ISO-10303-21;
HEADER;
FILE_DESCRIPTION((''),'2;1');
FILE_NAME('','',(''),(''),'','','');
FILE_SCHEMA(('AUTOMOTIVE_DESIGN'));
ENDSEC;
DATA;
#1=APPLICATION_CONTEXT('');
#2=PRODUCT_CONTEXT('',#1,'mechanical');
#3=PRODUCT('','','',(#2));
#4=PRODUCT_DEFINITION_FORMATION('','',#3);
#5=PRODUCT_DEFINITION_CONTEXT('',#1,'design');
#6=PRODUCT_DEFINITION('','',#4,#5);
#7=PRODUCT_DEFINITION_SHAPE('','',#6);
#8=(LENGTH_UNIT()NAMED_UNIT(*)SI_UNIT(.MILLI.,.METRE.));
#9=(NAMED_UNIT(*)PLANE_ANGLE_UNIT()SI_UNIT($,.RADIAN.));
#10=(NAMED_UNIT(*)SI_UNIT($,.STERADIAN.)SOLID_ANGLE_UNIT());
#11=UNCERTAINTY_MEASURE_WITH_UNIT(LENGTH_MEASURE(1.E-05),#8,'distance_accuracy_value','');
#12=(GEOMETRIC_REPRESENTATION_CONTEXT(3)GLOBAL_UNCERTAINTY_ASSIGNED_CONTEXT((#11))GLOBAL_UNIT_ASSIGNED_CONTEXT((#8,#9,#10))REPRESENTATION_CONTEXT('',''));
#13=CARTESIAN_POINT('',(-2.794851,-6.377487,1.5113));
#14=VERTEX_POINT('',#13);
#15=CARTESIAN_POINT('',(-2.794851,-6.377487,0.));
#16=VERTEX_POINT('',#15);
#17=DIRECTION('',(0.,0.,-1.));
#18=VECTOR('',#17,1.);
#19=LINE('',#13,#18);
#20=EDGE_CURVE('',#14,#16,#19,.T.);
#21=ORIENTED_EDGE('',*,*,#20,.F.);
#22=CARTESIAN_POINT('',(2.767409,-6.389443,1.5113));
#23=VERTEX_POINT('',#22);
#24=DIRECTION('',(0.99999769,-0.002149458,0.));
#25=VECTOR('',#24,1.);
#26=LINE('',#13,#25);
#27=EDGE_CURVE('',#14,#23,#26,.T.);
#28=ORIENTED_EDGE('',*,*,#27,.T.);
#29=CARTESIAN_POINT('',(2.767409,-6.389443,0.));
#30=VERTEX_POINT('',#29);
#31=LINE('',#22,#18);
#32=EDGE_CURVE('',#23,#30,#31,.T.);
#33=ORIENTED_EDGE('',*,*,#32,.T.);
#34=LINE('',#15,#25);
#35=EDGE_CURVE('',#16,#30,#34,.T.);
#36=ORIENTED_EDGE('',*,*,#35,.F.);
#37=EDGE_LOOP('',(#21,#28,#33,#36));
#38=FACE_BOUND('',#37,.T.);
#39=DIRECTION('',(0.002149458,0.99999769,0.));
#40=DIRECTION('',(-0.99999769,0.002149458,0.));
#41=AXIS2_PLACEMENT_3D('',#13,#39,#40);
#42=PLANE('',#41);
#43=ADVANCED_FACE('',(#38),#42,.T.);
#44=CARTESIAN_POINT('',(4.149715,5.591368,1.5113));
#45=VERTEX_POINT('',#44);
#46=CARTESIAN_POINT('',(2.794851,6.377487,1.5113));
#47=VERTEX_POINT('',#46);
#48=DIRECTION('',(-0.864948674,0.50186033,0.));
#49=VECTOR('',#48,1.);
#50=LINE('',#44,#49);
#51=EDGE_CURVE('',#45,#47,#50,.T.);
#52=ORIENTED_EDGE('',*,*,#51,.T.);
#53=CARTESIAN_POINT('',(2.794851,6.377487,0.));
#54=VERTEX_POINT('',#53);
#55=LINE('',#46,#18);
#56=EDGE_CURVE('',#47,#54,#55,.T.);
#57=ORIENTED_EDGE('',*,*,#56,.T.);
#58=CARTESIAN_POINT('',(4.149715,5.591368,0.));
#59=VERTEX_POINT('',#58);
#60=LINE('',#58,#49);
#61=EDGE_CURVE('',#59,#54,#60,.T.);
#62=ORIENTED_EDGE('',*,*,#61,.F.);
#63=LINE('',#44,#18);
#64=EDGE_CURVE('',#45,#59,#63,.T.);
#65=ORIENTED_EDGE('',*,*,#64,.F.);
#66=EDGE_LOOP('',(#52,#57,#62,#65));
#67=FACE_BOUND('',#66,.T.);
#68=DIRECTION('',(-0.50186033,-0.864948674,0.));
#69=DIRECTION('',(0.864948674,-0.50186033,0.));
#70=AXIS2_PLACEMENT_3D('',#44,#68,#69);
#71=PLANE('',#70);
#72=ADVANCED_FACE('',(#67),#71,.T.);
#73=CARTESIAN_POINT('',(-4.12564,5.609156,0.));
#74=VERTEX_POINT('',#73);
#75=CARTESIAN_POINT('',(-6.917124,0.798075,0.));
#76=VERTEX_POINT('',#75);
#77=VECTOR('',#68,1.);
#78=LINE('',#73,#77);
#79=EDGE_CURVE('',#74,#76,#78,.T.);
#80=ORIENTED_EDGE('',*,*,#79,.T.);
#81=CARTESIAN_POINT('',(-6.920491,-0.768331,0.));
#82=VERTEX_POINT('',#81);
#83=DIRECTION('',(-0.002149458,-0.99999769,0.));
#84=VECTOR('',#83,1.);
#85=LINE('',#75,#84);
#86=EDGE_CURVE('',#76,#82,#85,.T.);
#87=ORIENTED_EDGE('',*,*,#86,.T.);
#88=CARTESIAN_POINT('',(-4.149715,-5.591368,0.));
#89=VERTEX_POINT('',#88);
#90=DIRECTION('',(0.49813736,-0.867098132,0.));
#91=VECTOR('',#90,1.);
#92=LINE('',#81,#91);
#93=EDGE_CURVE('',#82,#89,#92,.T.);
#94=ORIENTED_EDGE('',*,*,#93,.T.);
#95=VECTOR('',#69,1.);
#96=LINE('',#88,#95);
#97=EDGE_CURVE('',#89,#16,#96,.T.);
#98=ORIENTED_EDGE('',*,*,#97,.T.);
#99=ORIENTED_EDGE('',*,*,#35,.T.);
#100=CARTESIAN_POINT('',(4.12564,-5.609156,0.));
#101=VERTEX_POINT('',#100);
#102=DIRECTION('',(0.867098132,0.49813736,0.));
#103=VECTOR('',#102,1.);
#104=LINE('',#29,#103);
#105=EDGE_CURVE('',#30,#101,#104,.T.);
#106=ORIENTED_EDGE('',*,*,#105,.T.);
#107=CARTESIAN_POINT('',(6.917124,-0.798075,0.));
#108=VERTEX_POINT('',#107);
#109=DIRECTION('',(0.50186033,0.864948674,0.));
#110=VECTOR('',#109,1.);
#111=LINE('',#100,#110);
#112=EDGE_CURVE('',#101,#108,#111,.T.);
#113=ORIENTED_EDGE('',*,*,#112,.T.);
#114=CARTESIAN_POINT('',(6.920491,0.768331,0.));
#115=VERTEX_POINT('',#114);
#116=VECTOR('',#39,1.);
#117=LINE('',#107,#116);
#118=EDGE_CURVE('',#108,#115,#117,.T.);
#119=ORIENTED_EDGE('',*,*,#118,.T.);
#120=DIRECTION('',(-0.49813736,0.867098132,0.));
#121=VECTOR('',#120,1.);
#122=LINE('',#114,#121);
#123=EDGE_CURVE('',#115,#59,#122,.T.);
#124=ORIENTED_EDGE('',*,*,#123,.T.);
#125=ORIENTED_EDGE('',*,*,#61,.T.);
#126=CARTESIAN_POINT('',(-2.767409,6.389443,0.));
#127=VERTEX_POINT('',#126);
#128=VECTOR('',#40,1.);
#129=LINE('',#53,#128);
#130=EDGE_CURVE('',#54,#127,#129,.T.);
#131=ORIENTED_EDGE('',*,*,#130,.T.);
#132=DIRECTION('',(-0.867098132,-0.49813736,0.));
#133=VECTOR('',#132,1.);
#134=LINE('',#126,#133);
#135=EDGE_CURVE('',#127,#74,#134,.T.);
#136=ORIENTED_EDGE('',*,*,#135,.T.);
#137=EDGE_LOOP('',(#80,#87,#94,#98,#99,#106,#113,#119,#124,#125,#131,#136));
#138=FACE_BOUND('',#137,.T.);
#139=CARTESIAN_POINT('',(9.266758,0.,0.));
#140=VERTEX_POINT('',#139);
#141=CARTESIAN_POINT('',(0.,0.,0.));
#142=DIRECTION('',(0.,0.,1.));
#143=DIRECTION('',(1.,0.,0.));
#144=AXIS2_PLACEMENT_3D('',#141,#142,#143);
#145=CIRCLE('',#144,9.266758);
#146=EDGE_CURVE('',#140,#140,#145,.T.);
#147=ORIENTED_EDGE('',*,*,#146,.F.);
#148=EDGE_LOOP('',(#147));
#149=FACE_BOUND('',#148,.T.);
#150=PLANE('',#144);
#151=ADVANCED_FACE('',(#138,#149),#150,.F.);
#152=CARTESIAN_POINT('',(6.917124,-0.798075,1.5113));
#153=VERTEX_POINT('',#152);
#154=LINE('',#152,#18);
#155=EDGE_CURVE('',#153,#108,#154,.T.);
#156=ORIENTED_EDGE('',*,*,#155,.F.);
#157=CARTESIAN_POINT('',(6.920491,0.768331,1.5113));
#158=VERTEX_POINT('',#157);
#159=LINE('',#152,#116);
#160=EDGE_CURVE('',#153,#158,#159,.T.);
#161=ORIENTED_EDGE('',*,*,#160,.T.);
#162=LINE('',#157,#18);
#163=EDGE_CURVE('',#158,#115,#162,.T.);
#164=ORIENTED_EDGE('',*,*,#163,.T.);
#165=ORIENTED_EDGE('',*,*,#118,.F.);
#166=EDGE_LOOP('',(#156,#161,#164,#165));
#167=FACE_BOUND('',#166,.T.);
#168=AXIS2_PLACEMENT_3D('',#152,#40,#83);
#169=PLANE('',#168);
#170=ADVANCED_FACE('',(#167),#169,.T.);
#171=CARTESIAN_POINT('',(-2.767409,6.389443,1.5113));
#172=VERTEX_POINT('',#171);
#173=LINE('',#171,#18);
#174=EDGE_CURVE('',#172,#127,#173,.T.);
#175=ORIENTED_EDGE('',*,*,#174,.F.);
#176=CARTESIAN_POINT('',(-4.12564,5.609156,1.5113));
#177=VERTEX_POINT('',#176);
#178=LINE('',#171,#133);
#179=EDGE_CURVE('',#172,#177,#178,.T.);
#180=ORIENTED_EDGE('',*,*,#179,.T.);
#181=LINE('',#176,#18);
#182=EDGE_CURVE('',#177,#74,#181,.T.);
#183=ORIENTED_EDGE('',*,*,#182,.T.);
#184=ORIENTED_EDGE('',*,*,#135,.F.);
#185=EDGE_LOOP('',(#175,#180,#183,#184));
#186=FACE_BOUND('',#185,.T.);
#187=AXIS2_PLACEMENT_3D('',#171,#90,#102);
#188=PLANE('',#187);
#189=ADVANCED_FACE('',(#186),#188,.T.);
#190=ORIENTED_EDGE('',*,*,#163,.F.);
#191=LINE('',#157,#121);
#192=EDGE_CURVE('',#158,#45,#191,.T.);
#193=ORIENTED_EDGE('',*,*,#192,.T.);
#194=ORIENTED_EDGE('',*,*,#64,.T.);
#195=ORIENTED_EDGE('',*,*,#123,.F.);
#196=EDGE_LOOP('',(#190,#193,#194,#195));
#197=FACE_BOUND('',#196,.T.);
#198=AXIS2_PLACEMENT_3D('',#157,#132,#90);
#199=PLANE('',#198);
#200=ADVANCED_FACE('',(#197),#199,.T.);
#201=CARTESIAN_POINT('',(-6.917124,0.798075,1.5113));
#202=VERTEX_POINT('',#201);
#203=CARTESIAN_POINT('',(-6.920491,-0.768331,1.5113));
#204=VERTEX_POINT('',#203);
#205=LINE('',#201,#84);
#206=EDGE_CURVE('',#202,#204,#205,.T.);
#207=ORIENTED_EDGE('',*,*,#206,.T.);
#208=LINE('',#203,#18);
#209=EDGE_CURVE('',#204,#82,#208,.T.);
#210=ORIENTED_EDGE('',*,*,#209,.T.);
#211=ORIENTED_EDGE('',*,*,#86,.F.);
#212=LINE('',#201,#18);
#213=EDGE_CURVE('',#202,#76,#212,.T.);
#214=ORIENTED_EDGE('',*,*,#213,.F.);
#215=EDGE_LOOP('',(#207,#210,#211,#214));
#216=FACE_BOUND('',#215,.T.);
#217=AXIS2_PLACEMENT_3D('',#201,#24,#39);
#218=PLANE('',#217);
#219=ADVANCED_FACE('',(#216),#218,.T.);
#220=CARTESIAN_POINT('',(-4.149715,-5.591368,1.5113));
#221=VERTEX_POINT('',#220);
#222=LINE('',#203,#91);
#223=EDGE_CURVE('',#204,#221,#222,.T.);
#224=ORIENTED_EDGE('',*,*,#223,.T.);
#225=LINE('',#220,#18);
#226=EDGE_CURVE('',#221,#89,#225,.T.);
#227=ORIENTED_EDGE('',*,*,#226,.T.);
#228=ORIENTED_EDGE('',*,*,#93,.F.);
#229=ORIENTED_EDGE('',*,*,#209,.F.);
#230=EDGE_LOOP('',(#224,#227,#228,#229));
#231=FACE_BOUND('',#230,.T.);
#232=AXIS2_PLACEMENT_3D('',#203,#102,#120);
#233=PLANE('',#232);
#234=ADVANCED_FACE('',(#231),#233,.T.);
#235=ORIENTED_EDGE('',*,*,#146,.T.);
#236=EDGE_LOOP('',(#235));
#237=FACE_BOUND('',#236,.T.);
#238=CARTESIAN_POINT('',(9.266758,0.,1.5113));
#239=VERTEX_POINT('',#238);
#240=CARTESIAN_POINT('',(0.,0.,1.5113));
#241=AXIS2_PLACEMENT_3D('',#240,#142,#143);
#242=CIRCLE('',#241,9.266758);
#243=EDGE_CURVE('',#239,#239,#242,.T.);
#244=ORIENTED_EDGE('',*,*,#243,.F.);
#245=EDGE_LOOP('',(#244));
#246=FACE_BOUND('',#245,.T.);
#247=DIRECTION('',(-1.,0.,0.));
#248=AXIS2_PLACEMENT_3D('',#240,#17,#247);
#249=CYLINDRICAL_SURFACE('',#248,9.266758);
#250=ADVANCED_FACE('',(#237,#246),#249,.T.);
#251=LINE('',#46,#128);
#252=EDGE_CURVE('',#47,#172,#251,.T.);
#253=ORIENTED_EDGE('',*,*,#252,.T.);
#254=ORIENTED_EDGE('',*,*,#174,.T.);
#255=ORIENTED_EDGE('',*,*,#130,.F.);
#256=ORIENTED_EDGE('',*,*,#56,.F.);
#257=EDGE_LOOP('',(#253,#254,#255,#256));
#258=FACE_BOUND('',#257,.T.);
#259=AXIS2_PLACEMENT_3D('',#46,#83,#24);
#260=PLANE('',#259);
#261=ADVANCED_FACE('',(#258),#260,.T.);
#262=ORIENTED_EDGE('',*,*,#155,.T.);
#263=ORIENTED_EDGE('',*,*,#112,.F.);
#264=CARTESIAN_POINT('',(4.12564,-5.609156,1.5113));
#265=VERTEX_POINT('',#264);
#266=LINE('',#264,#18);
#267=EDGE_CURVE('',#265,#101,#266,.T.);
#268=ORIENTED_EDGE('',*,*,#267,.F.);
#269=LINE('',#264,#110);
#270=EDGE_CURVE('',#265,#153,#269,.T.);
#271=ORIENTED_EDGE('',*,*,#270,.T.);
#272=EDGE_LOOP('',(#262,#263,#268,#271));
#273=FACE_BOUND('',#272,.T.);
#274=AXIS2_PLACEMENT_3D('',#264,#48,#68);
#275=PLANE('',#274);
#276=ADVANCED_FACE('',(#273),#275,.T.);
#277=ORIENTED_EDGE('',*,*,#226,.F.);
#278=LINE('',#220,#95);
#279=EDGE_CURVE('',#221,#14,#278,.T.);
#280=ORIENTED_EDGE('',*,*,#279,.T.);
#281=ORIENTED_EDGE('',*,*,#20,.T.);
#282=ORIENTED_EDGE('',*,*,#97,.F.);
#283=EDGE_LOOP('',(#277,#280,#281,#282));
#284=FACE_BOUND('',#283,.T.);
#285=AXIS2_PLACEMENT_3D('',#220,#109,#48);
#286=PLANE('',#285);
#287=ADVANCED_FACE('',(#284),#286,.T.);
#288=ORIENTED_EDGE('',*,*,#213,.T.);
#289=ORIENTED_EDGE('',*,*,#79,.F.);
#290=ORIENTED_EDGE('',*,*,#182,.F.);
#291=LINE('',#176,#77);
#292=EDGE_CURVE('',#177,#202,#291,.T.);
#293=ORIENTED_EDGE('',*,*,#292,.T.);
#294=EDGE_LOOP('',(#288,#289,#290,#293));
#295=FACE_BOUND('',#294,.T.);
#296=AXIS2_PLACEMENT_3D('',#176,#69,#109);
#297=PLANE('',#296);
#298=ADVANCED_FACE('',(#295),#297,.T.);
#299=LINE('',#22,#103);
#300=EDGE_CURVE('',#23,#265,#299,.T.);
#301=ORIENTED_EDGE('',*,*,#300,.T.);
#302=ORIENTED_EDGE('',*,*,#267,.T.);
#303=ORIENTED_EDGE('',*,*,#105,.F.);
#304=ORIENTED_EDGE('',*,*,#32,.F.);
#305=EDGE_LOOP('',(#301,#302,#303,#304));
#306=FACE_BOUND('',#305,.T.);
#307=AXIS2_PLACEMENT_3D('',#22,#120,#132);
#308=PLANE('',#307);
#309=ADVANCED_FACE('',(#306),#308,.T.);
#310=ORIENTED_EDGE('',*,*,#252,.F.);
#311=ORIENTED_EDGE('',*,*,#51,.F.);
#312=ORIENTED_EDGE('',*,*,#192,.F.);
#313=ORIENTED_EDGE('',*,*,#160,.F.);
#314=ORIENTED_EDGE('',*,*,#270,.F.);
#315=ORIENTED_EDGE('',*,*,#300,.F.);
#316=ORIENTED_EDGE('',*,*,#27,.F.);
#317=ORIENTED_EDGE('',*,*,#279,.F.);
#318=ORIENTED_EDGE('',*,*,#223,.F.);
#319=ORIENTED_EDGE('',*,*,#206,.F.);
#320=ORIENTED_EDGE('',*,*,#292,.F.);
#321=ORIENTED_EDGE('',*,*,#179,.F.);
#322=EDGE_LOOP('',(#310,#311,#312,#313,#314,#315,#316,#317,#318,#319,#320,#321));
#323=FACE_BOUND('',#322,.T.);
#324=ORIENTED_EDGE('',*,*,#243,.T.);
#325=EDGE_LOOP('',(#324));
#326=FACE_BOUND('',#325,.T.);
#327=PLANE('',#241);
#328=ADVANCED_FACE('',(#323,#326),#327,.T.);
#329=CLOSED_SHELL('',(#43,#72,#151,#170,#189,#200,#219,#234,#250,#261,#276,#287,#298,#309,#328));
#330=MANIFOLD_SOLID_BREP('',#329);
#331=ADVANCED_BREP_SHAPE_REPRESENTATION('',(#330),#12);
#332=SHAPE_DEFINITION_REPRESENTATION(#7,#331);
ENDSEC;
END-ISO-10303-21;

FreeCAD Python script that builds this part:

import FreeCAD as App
import Part
import Sketcher

V = App.Vector

doc = App.newDocument("Part")
body = doc.addObject("PartDesign::Body", "Body")

sketch1 = body.newObject("Sketcher::SketchObject", "Sketch")
sketch1.AttachmentSupport = (doc.getObject("XY_Plane"), [""])
sketch1.MapMode = "FlatFace"
sketch1.addGeometry(Part.Circle(V(0, 0, 0), V(0, 0, 1), 9.266758), False)
sketch1.addGeometry(Part.LineSegment(V(-4.12564, 5.609156, 0), V(-2.767409, 6.389443, 0)), False)
sketch1.addGeometry(Part.LineSegment(V(-2.767409, 6.389443, 0), V(2.794851, 6.377487, 0)), False)
sketch1.addGeometry(Part.LineSegment(V(2.794851, 6.377487, 0), V(4.149715, 5.591368, 0)), False)
sketch1.addGeometry(Part.LineSegment(V(4.149715, 5.591368, 0), V(6.920491, 0.768331, 0)), False)
sketch1.addGeometry(Part.LineSegment(V(6.920491, 0.768331, 0), V(6.917124, -0.798075, 0)), False)
sketch1.addGeometry(Part.LineSegment(V(6.917124, -0.798075, 0), V(4.12564, -5.609156, 0)), False)
sketch1.addGeometry(Part.LineSegment(V(4.12564, -5.609156, 0), V(2.767409, -6.389443, 0)), False)
sketch1.addGeometry(Part.LineSegment(V(2.767409, -6.389443, 0), V(-2.794851, -6.377487, 0)), False)
sketch1.addGeometry(Part.LineSegment(V(-2.794851, -6.377487, 0), V(-4.149715, -5.591368, 0)), False)
sketch1.addGeometry(Part.LineSegment(V(-4.149715, -5.591368, 0), V(-6.920491, -0.768331, 0)), False)
sketch1.addGeometry(Part.LineSegment(V(-6.920491, -0.768331, 0), V(-6.917124, 0.798075, 0)), False)
sketch1.addGeometry(Part.LineSegment(V(-6.917124, 0.798075, 0), V(-4.12564, 5.609156, 0)), False)
sketch1.addConstraint(Sketcher.Constraint("Coincident", 1, 2, 2, 1))
sketch1.addConstraint(Sketcher.Constraint("Coincident", 2, 2, 3, 1))
sketch1.addConstraint(Sketcher.Constraint("Coincident", 3, 2, 4, 1))
sketch1.addConstraint(Sketcher.Constraint("Coincident", 4, 2, 5, 1))
sketch1.addConstraint(Sketcher.Constraint("Coincident", 5, 2, 6, 1))
sketch1.addConstraint(Sketcher.Constraint("Coincident", 6, 2, 7, 1))
sketch1.addConstraint(Sketcher.Constraint("Coincident", 7, 2, 8, 1))
sketch1.addConstraint(Sketcher.Constraint("Coincident", 8, 2, 9, 1))
sketch1.addConstraint(Sketcher.Constraint("Coincident", 9, 2, 10, 1))
sketch1.addConstraint(Sketcher.Constraint("Coincident", 10, 2, 11, 1))
sketch1.addConstraint(Sketcher.Constraint("Coincident", 11, 2, 12, 1))
sketch1.addConstraint(Sketcher.Constraint("Coincident", 12, 2, 1, 1))
sketch1.addConstraint(Sketcher.Constraint("Coincident", 0, 3, -1, 1))
sketch1.addConstraint(Sketcher.Constraint("Symmetric", 1, 2, 7, 2, -1, 1))
sketch1.addConstraint(Sketcher.Constraint("Symmetric", 2, 2, 8, 2, -1, 1))
sketch1.addConstraint(Sketcher.Constraint("Symmetric", 3, 2, 9, 2, -1, 1))
sketch1.addConstraint(Sketcher.Constraint("Symmetric", 4, 2, 10, 2, -1, 1))
sketch1.addConstraint(Sketcher.Constraint("Symmetric", 5, 2, 11, 2, -1, 1))
sketch1.addConstraint(Sketcher.Constraint("Symmetric", 6, 2, 12, 2, -1, 1))
sketch1.addConstraint(Sketcher.Constraint("Perpendicular", 1, 4))
sketch1.addConstraint(Sketcher.Constraint("Perpendicular", 2, 5))
sketch1.addConstraint(Sketcher.Constraint("Perpendicular", 3, 6))
sketch1.addConstraint(Sketcher.Constraint("Equal", 1, 3))
sketch1.addConstraint(Sketcher.Constraint("Equal", 2, 4))
sketch1.addConstraint(Sketcher.Constraint("Equal", 3, 5))
sketch1.addConstraint(Sketcher.Constraint("Equal", 4, 6))
sketch1.addConstraint(Sketcher.Constraint("Diameter", 0, 18.533515))
sketch1.addConstraint(Sketcher.Constraint("DistanceX", 1, 2, 4, 2, 9.687901))
sketch1.addConstraint(Sketcher.Constraint("Distance", 1, 1.56641))
sketch1.addConstraint(Sketcher.Constraint("DistanceX", 1, 2, -1, 1, 2.767409))
sketch1.addConstraint(Sketcher.Constraint("DistanceX", -1, 1, 2, 2, 2.794851))
sketch1.addConstraint(Sketcher.Constraint("DistanceY", -1, 1, 3, 2, 5.591368))
pad1 = body.newObject("PartDesign::Pad", "Pad")
pad1.Profile = sketch1
pad1.Length = 1.5113

doc.recompute()
